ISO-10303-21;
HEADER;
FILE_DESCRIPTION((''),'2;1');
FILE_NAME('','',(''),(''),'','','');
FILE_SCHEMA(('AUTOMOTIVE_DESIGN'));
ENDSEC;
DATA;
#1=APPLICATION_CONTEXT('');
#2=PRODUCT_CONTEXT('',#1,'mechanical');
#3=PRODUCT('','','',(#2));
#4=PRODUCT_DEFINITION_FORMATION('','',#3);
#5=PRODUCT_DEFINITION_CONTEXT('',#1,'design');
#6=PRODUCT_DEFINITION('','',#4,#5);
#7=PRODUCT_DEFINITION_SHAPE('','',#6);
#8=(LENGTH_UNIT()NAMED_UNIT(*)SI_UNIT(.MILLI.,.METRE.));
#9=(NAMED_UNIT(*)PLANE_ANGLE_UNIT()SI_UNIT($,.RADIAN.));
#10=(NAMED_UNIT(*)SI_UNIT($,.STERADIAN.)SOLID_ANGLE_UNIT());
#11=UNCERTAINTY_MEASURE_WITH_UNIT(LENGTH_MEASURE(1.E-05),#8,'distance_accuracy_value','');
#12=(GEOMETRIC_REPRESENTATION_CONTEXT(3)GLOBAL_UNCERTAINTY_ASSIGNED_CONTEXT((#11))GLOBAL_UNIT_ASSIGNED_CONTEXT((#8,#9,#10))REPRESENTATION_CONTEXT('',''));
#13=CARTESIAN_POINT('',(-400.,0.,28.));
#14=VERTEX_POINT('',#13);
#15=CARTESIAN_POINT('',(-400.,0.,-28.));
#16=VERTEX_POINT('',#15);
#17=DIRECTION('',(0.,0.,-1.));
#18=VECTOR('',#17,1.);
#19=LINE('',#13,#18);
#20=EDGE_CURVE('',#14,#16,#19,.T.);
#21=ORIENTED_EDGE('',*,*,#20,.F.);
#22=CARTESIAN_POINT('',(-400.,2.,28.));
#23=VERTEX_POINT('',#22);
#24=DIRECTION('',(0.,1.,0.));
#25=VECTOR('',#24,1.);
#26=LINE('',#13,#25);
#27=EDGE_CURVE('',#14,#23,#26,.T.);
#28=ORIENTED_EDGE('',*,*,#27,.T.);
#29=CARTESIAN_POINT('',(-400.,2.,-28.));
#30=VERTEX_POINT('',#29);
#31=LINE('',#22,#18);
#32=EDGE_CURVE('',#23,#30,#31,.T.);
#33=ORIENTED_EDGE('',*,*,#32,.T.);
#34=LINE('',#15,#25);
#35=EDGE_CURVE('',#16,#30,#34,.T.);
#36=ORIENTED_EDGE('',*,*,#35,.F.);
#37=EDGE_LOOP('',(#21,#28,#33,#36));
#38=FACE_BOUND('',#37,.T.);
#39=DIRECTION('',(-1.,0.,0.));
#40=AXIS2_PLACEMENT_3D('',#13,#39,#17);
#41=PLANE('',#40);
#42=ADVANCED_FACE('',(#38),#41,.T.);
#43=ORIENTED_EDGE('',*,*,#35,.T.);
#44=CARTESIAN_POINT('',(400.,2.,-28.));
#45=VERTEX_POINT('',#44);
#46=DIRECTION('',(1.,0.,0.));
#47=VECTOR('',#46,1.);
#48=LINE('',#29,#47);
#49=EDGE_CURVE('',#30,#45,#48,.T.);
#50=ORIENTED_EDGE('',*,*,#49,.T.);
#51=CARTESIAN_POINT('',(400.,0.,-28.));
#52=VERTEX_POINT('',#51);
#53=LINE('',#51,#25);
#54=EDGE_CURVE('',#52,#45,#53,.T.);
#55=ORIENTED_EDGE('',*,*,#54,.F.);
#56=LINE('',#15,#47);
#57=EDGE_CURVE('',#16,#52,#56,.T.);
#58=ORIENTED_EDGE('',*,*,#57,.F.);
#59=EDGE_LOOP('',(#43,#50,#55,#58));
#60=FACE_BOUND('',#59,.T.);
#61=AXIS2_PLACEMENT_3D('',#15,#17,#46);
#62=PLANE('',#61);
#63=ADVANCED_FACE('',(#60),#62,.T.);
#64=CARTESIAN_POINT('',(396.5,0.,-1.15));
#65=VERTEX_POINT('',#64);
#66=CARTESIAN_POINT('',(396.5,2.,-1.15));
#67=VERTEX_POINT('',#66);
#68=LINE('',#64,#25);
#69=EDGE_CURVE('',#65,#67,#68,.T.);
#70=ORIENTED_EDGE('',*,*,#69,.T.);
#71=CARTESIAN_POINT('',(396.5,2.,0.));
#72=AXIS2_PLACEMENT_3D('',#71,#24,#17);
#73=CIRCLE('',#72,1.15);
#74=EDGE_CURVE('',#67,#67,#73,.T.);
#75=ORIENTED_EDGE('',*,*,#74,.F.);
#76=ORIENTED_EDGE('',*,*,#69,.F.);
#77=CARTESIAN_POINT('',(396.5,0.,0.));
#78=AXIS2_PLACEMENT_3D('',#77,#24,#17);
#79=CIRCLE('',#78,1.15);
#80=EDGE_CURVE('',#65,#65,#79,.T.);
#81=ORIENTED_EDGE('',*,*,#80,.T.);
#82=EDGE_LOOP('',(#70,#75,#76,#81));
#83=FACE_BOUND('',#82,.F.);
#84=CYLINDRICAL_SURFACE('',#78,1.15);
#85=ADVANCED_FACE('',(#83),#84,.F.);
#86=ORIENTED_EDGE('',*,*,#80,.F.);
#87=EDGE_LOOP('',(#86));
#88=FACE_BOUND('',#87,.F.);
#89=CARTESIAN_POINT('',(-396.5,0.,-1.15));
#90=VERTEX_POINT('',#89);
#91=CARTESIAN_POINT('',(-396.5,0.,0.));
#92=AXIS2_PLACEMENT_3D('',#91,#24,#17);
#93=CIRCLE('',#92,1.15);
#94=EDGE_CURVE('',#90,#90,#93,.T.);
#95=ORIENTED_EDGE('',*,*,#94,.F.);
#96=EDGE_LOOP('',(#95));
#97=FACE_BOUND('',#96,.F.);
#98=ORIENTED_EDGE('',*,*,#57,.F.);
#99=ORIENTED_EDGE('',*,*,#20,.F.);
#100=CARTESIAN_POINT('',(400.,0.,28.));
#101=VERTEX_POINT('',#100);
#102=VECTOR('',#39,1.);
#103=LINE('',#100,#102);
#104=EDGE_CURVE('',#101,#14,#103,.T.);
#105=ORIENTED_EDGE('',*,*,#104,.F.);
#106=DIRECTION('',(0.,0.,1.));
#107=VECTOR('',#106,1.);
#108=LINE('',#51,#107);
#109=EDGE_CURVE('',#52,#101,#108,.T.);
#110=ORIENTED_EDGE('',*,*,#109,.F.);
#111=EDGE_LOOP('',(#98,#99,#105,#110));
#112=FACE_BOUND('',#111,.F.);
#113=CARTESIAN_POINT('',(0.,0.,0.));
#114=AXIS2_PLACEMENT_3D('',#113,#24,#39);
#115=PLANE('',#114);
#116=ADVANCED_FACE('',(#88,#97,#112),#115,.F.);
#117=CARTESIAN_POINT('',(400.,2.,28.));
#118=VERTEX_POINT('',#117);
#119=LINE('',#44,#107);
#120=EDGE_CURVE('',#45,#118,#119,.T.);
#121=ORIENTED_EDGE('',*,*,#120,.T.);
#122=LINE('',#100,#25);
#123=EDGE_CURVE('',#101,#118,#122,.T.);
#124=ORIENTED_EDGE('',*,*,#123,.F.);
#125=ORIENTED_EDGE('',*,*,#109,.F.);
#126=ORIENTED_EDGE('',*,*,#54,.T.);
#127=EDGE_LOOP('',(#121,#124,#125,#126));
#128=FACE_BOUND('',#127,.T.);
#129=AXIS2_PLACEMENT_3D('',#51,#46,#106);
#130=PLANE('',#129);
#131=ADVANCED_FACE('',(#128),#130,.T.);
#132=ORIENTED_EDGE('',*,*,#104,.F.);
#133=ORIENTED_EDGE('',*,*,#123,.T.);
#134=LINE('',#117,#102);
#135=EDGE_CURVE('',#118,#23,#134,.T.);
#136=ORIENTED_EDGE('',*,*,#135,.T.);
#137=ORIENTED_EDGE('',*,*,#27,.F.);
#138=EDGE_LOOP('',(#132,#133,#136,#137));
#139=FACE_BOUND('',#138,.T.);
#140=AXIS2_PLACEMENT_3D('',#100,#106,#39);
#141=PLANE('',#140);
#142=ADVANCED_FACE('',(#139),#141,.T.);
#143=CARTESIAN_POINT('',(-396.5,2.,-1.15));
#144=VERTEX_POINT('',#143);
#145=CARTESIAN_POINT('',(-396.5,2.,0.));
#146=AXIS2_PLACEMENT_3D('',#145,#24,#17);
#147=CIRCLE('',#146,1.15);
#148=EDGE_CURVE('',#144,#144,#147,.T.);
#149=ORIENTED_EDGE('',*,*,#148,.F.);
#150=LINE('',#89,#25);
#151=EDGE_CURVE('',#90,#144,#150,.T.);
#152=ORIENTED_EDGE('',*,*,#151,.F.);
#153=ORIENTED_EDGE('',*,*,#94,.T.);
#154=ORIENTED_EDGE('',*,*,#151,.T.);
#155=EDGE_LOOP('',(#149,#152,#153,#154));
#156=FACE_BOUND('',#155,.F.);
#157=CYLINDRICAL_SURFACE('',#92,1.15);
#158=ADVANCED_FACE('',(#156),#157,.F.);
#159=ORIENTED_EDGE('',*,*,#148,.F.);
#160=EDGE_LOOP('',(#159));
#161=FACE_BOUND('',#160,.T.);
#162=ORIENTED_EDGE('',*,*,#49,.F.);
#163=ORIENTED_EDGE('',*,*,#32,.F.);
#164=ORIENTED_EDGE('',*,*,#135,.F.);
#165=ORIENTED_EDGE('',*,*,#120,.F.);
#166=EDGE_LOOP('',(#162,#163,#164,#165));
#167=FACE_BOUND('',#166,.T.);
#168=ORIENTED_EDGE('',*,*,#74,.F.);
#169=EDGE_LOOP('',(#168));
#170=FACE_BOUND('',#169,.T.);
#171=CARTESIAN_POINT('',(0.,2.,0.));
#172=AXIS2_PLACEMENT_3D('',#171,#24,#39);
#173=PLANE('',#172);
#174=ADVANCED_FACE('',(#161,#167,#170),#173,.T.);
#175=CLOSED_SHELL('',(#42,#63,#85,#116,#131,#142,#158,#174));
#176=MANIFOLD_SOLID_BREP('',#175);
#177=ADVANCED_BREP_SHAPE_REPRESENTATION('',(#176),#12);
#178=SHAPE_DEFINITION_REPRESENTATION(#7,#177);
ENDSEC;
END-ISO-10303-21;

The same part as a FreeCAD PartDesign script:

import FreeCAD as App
import Part
import Sketcher
from FreeCAD import Vector


def add_polygon(sketch, points):
    """Adds a closed chain of lines whose ends are joined by coincident constraints."""
    first, n = sketch.GeometryCount, len(points)
    for a, b in zip(points, points[1:] + points[:1]):
        sketch.addGeometry(Part.LineSegment(App.Vector(*a, 0), App.Vector(*b, 0)), False)
    for i in range(n):
        sketch.addConstraint(Sketcher.Constraint("Coincident", first + i, 2, first + (i + 1) % n, 1))

doc = App.newDocument("Part")
body = doc.addObject("PartDesign::Body", "Body")

# Sketch on XZ plane
sketch1 = body.newObject("Sketcher::SketchObject", "Sketch")
sketch1.AttachmentSupport = (doc.getObject("XZ_Plane"), [""])
sketch1.MapMode = "FlatFace"
add_polygon(sketch1, [(-400, 28), (400, 28), (400, -28), (-400, -28)])  # lines 0-3
sketch1.addConstraint([
    Sketcher.Constraint("Horizontal", 0),
    Sketcher.Constraint("Vertical", 1),
    Sketcher.Constraint("Horizontal", 2),
    Sketcher.Constraint("Vertical", 3),
    Sketcher.Constraint("Symmetric", 0, 2, 2, 2, -1, 1),
    Sketcher.Constraint("DistanceX", 0, 1, 0, 2, 800.0),
    Sketcher.Constraint("DistanceY", 1, 2, 1, 1, 56.0),
])
pad1 = body.newObject("PartDesign::Pad", "Pad")
pad1.Profile = sketch1
pad1.Length = 2
pad1.Reversed = True

# Sketch on XZ plane
sketch2 = body.newObject("Sketcher::SketchObject", "Sketch001")
sketch2.AttachmentSupport = (doc.getObject("XZ_Plane"), [""])
sketch2.MapMode = "FlatFace"
sketch2.addGeometry(Part.Circle(Vector(-396.5, 0, 0), Vector(0, 0, 1), 1.1), False)
sketch2.addConstraint([
    Sketcher.Constraint("PointOnObject", 0, 3, -1),
    Sketcher.Constraint("Diameter", 0, 2.3),
    Sketcher.Constraint("DistanceX", 0, 3, -1, 1, 396.5),
])
doc.recompute()
hole = body.newObject("PartDesign::Hole", "Hole")
hole.Profile = sketch2
hole.ThreadType = "None"
hole.Diameter = 2.3
hole.DepthType = "ThroughAll"

# Sketch on XZ plane
sketch3 = body.newObject("Sketcher::SketchObject", "Sketch002")
sketch3.AttachmentSupport = (doc.getObject("XZ_Plane"), [""])
sketch3.MapMode = "FlatFace"
sketch3.addGeometry(Part.Circle(Vector(396.5, 0, 0), Vector(0, 0, 1), 1.1), False)
sketch3.addConstraint([
    Sketcher.Constraint("PointOnObject", 0, 3, -1),
    Sketcher.Constraint("Diameter", 0, 2.3),
    Sketcher.Constraint("DistanceX", -1, 1, 0, 3, 396.5),
])
doc.recompute()
hole2 = body.newObject("PartDesign::Hole", "Hole001")
hole2.Profile = sketch3
hole2.ThreadType = "None"
hole2.Diameter = 2.3
hole2.DepthType = "ThroughAll"

doc.recompute()
